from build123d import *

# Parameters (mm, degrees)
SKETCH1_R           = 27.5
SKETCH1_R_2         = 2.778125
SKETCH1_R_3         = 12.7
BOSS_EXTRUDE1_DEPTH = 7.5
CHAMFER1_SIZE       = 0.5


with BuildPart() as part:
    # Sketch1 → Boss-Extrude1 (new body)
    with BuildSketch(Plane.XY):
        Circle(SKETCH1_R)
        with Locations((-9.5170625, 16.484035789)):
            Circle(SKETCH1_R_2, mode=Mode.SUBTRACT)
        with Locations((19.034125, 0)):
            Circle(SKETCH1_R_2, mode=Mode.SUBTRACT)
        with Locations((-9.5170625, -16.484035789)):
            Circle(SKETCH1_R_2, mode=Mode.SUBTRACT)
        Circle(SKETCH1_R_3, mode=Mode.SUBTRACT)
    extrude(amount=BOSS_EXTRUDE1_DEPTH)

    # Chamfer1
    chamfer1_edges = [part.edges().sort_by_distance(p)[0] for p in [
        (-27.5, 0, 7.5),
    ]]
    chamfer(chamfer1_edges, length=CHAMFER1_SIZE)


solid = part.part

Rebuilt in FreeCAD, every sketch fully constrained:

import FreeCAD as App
import Part
import Sketcher
from FreeCAD import Vector
Q = App.Units.Quantity


def edges_at(feature, points):
    """Names of the edges that pass closest to the given points."""
    edges = feature.Shape.Edges
    near = lambda p: min(range(len(edges)), key=lambda i: edges[i].distToShape(Part.Vertex(*p))[0])
    return sorted({f"Edge{near(p) + 1}" for p in points})

doc = App.newDocument("Part")
body = doc.addObject("PartDesign::Body", "Body")

sketch1 = doc.addObject("Sketcher::SketchObject", "Sketch")
body.addObject(sketch1)
sketch1.AttachmentSupport = (doc.XY_Plane, [""])
sketch1.MapMode = "FlatFace"
sketch1.addGeometry(Part.Circle(Vector(0, 0, 0), Vector(0, 0, 1), 27.5), False)
sketch1.addGeometry(Part.Circle(Vector(-9.5, -16.5, 0), Vector(0, 0, 1), 2.8), False)
sketch1.addGeometry(Part.Circle(Vector(0, 0, 0), Vector(0, 0, 1), 12.7), False)
sketch1.addGeometry(Part.Circle(Vector(-9.5, 16.5, 0), Vector(0, 0, 1), 2.8), False)
sketch1.addGeometry(Part.Circle(Vector(19, 0, 0), Vector(0, 0, 1), 2.8), False)
sketch1.addConstraint(Sketcher.Constraint("Coincident", 0, 3, -1, 1))
sketch1.addConstraint(Sketcher.Constraint("Coincident", 2, 3, -1, 1))
sketch1.addConstraint(Sketcher.Constraint("Equal", 1, 3))
sketch1.addConstraint(Sketcher.Constraint("Equal", 3, 4))
sketch1.addConstraint(Sketcher.Constraint("Symmetric", 1, 3, 3, 3, -1))
sketch1.addConstraint(Sketcher.Constraint("PointOnObject", 4, 3, -1))
sketch1.addConstraint(Sketcher.Constraint("Diameter", 0, Q("55 mm")))
sketch1.addConstraint(Sketcher.Constraint("Diameter", 2, Q("25.4 mm")))
sketch1.addConstraint(Sketcher.Constraint("Diameter", 1, Q("5.55625 mm")))
sketch1.addConstraint(Sketcher.Constraint("DistanceY", 1, 3, 3, 3, Q("32.968072 mm")))
sketch1.addConstraint(Sketcher.Constraint("DistanceX", 1, 3, -1, 1, Q("9.517062 mm")))
sketch1.addConstraint(Sketcher.Constraint("DistanceX", -1, 1, 4, 3, Q("19.034125 mm")))
pad1 = doc.addObject("PartDesign::Pad", "Pad")
body.addObject(pad1)
pad1.Profile = sketch1
pad1.Length = 7.5
doc.recompute()

chamfer = doc.addObject("PartDesign::Chamfer", "Chamfer")
body.addObject(chamfer)
chamfer.Base = (pad1, edges_at(pad1, [(-27.5, 0, 7.5)]))
chamfer.Size = 0.5

doc.recompute()
